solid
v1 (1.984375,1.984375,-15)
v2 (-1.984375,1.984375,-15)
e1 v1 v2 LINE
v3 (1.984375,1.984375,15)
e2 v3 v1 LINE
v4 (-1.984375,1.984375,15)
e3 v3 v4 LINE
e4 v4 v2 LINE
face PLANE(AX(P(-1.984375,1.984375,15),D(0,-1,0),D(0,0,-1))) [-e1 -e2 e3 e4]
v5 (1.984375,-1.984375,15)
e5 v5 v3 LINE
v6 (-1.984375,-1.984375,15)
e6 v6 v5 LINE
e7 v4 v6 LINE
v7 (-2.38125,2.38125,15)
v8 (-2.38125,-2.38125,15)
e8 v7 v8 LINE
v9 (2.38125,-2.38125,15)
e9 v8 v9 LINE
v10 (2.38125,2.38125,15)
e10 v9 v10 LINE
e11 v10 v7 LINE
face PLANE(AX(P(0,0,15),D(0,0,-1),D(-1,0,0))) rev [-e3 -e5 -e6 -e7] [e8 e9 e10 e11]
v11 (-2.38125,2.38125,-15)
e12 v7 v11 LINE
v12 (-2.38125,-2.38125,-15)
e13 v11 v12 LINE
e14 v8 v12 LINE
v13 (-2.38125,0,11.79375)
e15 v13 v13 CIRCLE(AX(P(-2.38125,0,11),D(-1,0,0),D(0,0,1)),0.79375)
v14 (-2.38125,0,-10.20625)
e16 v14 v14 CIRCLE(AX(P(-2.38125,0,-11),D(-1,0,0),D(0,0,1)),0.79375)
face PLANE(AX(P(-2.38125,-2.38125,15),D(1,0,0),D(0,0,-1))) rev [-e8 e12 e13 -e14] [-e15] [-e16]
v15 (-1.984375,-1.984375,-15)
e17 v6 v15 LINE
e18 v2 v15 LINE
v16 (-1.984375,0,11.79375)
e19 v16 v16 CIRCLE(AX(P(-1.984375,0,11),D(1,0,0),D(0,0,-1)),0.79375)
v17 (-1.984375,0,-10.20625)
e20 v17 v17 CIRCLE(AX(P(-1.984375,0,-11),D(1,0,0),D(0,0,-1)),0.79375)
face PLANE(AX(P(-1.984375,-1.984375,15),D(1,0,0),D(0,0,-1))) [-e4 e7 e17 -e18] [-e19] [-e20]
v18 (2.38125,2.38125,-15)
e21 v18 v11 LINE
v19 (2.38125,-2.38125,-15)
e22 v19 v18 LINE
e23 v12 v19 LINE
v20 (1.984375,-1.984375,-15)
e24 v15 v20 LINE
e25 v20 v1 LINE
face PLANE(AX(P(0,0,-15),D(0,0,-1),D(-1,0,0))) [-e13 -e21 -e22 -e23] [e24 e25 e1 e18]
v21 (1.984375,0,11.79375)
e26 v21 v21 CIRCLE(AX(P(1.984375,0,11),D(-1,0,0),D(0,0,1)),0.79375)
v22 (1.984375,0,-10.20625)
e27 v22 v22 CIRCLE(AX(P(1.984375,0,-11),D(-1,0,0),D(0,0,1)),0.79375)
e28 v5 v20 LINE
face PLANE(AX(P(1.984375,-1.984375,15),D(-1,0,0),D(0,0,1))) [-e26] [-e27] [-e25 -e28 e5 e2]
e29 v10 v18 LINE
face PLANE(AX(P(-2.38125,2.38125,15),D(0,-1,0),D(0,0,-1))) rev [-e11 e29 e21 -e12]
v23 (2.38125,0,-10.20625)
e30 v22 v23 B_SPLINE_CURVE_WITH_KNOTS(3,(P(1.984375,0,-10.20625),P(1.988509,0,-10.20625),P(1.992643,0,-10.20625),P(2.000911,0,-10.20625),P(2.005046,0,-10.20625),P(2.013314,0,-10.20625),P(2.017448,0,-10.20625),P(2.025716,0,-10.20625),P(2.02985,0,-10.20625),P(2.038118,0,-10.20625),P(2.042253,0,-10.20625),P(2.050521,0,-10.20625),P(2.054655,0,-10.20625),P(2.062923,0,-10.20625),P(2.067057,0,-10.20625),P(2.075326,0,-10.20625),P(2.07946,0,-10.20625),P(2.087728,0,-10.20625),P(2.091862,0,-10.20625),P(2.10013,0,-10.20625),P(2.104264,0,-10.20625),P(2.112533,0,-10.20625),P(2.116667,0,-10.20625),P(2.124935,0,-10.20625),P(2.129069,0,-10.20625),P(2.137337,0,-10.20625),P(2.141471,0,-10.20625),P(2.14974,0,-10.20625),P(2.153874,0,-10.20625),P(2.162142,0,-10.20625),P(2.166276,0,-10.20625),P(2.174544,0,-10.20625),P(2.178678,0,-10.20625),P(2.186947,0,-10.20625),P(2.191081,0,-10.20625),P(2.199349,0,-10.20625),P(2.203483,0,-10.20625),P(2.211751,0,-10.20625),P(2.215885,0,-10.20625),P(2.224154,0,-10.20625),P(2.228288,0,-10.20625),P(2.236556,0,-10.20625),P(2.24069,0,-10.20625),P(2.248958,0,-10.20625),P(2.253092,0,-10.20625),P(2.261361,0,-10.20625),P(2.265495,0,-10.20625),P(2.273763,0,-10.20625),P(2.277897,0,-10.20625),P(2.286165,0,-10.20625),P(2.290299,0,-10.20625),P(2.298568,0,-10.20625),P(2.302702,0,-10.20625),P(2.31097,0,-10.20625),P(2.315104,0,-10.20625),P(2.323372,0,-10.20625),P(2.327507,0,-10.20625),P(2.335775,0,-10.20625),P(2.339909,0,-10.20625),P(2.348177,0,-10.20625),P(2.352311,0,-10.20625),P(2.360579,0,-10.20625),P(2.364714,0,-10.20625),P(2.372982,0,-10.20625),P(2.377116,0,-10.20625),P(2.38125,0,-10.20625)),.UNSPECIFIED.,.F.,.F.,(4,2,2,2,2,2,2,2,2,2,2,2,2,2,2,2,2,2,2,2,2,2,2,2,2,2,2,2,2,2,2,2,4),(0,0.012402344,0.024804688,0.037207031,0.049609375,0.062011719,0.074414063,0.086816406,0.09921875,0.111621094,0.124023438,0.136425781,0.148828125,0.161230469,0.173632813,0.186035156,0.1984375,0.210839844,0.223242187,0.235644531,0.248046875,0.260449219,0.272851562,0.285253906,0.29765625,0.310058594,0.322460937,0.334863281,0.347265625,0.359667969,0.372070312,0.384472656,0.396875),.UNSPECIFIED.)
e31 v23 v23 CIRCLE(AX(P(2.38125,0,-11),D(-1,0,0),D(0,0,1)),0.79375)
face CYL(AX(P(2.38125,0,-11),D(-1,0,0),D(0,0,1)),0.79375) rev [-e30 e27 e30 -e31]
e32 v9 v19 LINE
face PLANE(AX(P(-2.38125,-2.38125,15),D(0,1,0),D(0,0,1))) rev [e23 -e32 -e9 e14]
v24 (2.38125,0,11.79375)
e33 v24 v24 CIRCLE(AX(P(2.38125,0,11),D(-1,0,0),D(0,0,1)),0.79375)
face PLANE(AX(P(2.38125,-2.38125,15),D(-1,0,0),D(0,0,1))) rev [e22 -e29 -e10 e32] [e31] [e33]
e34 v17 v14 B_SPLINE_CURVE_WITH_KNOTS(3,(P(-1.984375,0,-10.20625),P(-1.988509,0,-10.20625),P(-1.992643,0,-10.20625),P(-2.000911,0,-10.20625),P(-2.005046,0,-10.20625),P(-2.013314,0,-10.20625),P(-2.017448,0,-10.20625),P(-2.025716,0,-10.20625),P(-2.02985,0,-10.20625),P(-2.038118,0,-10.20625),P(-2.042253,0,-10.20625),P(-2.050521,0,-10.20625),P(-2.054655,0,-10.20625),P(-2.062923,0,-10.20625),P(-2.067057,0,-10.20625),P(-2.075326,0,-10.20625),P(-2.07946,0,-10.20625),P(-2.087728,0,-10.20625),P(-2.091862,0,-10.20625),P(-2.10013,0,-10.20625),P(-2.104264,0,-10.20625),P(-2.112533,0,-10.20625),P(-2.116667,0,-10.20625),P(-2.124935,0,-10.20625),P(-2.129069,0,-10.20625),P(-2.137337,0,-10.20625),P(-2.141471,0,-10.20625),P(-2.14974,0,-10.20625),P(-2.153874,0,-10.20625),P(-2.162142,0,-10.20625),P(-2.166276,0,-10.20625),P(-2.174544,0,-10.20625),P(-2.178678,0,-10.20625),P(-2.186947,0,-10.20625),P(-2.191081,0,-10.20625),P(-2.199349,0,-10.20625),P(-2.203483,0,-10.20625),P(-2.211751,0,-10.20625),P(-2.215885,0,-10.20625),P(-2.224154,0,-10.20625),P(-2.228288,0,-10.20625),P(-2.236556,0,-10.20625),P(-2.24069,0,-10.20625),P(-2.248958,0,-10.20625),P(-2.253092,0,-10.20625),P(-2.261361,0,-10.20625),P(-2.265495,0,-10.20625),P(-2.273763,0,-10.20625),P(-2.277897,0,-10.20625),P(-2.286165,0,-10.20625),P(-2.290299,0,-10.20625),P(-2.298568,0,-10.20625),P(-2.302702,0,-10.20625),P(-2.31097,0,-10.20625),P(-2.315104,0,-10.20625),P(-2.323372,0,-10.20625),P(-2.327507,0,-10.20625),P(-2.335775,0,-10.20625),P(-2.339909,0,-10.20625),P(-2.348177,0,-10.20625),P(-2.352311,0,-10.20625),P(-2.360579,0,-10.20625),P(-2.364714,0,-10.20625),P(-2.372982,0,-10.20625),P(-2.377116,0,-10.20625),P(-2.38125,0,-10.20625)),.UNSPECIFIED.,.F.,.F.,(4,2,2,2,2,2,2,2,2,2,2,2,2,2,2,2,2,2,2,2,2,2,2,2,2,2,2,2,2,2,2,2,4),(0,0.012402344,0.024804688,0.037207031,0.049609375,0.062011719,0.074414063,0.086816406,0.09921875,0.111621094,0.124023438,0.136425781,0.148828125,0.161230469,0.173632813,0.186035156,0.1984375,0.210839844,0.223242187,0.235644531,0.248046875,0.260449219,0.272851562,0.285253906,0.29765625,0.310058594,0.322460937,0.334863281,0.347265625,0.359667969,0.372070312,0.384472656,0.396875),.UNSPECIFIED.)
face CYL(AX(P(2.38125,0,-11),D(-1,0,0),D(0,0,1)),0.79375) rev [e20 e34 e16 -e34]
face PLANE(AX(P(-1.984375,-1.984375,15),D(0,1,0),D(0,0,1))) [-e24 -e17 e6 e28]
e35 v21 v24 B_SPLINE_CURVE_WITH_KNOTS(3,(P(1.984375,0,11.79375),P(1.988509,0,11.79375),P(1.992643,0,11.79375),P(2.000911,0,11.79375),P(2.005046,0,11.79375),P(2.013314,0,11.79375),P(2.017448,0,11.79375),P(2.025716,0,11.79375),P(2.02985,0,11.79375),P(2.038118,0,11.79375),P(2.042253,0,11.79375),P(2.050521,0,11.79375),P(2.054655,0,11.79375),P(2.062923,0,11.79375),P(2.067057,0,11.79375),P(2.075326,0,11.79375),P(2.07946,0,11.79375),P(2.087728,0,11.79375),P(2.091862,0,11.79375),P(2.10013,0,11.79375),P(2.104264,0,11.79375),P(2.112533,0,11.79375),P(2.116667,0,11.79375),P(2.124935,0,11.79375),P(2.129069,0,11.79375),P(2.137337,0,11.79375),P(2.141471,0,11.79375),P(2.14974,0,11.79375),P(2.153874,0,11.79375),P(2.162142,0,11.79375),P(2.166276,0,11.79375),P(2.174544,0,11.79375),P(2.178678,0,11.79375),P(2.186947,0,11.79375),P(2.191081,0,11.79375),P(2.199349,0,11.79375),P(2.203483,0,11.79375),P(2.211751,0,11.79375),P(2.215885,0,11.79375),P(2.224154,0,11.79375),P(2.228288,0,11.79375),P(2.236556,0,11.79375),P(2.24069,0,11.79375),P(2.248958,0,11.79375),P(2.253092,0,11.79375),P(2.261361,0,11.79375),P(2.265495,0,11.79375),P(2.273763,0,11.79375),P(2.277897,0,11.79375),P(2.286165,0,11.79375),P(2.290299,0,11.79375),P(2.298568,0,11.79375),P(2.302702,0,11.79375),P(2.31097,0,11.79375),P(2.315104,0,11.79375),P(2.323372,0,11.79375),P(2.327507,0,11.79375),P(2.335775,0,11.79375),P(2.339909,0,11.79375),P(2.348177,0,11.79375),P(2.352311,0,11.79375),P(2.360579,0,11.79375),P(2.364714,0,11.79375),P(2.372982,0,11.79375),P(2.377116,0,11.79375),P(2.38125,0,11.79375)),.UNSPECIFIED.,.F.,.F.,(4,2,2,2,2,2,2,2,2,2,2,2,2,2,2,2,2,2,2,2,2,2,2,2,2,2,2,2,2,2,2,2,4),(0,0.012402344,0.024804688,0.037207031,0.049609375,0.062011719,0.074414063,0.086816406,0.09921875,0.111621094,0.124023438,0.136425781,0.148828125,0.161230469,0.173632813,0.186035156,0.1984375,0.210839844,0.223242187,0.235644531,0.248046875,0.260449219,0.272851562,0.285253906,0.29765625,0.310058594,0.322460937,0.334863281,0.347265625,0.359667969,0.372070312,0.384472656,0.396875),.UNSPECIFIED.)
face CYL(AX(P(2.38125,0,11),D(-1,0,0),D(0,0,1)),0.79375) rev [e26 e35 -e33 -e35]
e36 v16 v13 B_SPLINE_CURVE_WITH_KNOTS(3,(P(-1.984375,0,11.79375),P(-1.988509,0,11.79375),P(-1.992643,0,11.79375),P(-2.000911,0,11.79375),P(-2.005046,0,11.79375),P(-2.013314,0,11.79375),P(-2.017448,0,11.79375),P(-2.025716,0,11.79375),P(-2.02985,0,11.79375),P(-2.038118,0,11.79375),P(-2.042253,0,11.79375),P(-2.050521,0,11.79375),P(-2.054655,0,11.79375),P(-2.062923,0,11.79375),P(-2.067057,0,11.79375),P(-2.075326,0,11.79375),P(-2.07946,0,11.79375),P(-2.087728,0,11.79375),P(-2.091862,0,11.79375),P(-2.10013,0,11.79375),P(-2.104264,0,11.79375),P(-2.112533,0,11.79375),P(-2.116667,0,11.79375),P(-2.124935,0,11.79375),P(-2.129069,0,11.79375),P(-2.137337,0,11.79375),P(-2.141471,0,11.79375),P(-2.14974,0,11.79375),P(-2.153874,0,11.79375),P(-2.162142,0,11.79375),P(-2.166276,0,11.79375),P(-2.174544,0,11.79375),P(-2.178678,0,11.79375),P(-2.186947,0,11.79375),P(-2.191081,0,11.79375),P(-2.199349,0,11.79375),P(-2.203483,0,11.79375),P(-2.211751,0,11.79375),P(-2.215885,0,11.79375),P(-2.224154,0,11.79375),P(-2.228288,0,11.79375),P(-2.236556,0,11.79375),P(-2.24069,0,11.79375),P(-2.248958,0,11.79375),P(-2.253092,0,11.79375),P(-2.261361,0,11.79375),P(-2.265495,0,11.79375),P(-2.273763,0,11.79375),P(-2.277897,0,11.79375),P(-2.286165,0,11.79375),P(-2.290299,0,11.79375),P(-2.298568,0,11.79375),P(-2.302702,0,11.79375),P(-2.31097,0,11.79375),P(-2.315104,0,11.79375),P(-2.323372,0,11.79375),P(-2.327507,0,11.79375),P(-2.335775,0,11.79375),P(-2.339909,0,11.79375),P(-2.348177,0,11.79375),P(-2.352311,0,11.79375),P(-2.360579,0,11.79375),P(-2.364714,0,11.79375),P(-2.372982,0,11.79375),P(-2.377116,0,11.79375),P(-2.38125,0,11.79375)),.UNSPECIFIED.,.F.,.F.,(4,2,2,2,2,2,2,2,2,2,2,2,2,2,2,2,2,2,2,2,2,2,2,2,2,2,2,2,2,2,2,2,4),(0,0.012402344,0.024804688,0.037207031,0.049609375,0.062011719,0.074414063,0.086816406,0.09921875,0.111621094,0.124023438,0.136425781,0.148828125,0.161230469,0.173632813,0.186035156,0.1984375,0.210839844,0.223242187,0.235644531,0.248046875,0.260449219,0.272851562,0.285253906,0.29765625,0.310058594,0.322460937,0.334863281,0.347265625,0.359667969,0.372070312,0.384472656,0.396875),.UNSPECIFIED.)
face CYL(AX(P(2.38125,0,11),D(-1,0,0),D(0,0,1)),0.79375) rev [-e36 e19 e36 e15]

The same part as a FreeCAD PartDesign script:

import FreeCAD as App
import Part
import Sketcher
Q = App.Units.Quantity

doc = App.newDocument("Part")
body = doc.addObject("PartDesign::Body", "Body")

# Sketch on XY plane
sketch1 = body.newObject("Sketcher::SketchObject", "Sketch")
sketch1.AttachmentSupport = (doc.getObject("XY_Plane"), [""])
sketch1.MapMode = "FlatFace"
sketch1.addGeometry(Part.LineSegment(App.Vector(-2.4, 2.4, 0), App.Vector(-2.4, -2.4, 0)), False)
sketch1.addGeometry(Part.LineSegment(App.Vector(-2.4, -2.4, 0), App.Vector(2.4, -2.4, 0)), False)
sketch1.addGeometry(Part.LineSegment(App.Vector(2.4, -2.4, 0), App.Vector(2.4, 2.4, 0)), False)
sketch1.addGeometry(Part.LineSegment(App.Vector(2.4, 2.4, 0), App.Vector(-2.4, 2.4, 0)), False)
sketch1.addGeometry(Part.LineSegment(App.Vector(2, -2, 0), App.Vector(-2, -2, 0)), False)
sketch1.addGeometry(Part.LineSegment(App.Vector(-2, -2, 0), App.Vector(-2, 2, 0)), False)
sketch1.addGeometry(Part.LineSegment(App.Vector(-2, 2, 0), App.Vector(2, 2, 0)), False)
sketch1.addGeometry(Part.LineSegment(App.Vector(2, 2, 0), App.Vector(2, -2, 0)), False)
sketch1.addConstraint(Sketcher.Constraint("Coincident", 0, 2, 1, 1))
sketch1.addConstraint(Sketcher.Constraint("Coincident", 1, 2, 2, 1))
sketch1.addConstraint(Sketcher.Constraint("Coincident", 2, 2, 3, 1))
sketch1.addConstraint(Sketcher.Constraint("Coincident", 3, 2, 0, 1))
sketch1.addConstraint(Sketcher.Constraint("Coincident", 4, 2, 5, 1))
sketch1.addConstraint(Sketcher.Constraint("Coincident", 5, 2, 6, 1))
sketch1.addConstraint(Sketcher.Constraint("Coincident", 6, 2, 7, 1))
sketch1.addConstraint(Sketcher.Constraint("Coincident", 7, 2, 4, 1))
sketch1.addConstraint(Sketcher.Constraint("Vertical", 0))
sketch1.addConstraint(Sketcher.Constraint("Horizontal", 1))
sketch1.addConstraint(Sketcher.Constraint("Vertical", 2))
sketch1.addConstraint(Sketcher.Constraint("Horizontal", 3))
sketch1.addConstraint(Sketcher.Constraint("Horizontal", 4))
sketch1.addConstraint(Sketcher.Constraint("Vertical", 5))
sketch1.addConstraint(Sketcher.Constraint("Horizontal", 6))
sketch1.addConstraint(Sketcher.Constraint("Vertical", 7))
sketch1.addConstraint(Sketcher.Constraint("Symmetric", 0, 2, 2, 2, -1, 1))
sketch1.addConstraint(Sketcher.Constraint("Symmetric", 4, 2, 6, 2, -1, 1))
sketch1.addConstraint(Sketcher.Constraint("Equal", 3, 0))
sketch1.addConstraint(Sketcher.Constraint("Equal", 6, 5))
sketch1.addConstraint(Sketcher.Constraint("DistanceX", 1, 1, 1, 2, Q("0.1875 in")))
sketch1.addConstraint(Sketcher.Constraint("DistanceX", 4, 2, 4, 1, Q("0.15625 in")))
pad1 = body.newObject("PartDesign::Pad", "Pad")
pad1.Profile = sketch1
pad1.Length = 30
pad1.Midplane = True

# Sketch on YZ plane
sketch2 = body.newObject("Sketcher::SketchObject", "Sketch001")
sketch2.AttachmentSupport = (doc.getObject("YZ_Plane"), [""])
sketch2.MapMode = "FlatFace"
sketch2.AttachmentOffset = App.Placement(App.Vector(0, 0, -0.09375 * 25.4), App.Rotation())
sketch2.addGeometry(Part.Circle(App.Vector(0, -11, 0), App.Vector(0, 0, 1), 0.8), False)
sketch2.addGeometry(Part.Circle(App.Vector(0, 11, 0), App.Vector(0, 0, 1), 0.8), False)
sketch2.addConstraint(Sketcher.Constraint("Equal", 0, 1))
sketch2.addConstraint(Sketcher.Constraint("Symmetric", 0, 3, 1, 3, -1, 1))
sketch2.addConstraint(Sketcher.Constraint("PointOnObject", 0, 3, -2))
sketch2.addConstraint(Sketcher.Constraint("Diameter", 0, Q("0.0625 in")))
sketch2.addConstraint(Sketcher.Constraint("DistanceY", 0, 3, -1, 1, Q("11 mm")))
pocket1 = body.newObject("PartDesign::Pocket", "Pocket")
pocket1.Profile = sketch2
pocket1.Type = "ThroughAll"
pocket1.Reversed = True

doc.recompute()
